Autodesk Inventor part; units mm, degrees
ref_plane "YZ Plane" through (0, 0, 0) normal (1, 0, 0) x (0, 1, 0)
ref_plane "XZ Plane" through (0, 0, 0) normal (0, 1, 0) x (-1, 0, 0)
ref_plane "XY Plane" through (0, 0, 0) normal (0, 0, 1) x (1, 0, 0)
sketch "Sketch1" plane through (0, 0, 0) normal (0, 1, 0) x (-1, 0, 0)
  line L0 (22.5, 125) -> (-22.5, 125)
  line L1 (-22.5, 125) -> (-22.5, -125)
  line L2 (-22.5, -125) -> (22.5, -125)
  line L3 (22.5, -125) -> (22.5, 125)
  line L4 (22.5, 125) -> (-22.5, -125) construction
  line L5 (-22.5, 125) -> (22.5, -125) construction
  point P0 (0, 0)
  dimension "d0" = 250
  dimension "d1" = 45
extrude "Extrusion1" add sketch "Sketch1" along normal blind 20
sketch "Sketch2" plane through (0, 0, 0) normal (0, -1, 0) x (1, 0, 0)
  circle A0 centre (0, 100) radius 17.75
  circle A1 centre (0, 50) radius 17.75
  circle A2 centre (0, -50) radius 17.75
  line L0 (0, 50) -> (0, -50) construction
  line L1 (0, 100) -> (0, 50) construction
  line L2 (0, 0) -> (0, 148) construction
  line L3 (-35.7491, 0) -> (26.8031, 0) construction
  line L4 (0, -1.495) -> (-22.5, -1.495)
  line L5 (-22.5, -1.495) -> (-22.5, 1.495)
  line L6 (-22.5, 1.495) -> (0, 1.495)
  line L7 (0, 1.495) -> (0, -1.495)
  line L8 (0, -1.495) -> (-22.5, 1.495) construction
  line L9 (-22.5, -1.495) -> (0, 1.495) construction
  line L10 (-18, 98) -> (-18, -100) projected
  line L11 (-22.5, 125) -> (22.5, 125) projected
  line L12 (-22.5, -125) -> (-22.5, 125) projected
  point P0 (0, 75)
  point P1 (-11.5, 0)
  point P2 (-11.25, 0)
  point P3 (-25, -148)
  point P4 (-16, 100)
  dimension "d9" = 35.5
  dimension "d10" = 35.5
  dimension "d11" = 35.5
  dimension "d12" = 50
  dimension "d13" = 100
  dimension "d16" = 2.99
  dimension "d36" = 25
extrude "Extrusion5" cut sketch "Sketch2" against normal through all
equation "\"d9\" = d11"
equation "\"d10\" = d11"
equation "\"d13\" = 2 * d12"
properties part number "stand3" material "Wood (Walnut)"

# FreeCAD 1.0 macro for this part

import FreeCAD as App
import Part
import Sketcher

doc = App.newDocument("Part")
body = doc.addObject("PartDesign::Body", "Body")

# Sketch on XZ plane
sketch1 = body.newObject("Sketcher::SketchObject", "Sketch")
sketch1.AttachmentSupport = (doc.getObject("XZ_Plane"), [""])
sketch1.MapMode = "FlatFace"
sketch1.addGeometry(Part.LineSegment(App.Vector(-22.5, -125, 0), App.Vector(-22.5, 125, 0)), False)
sketch1.addGeometry(Part.LineSegment(App.Vector(-22.5, 125, 0), App.Vector(22.5, 125, 0)), False)
sketch1.addGeometry(Part.LineSegment(App.Vector(22.5, 125, 0), App.Vector(22.5, -125, 0)), False)
sketch1.addGeometry(Part.LineSegment(App.Vector(22.5, -125, 0), App.Vector(-22.5, -125, 0)), False)
sketch1.addConstraint(Sketcher.Constraint("Coincident", 0, 2, 1, 1))
sketch1.addConstraint(Sketcher.Constraint("Coincident", 1, 2, 2, 1))
sketch1.addConstraint(Sketcher.Constraint("Coincident", 2, 2, 3, 1))
sketch1.addConstraint(Sketcher.Constraint("Coincident", 3, 2, 0, 1))
sketch1.addConstraint(Sketcher.Constraint("Vertical", 0))
sketch1.addConstraint(Sketcher.Constraint("Horizontal", 1))
sketch1.addConstraint(Sketcher.Constraint("Vertical", 2))
sketch1.addConstraint(Sketcher.Constraint("Horizontal", 3))
sketch1.addConstraint(Sketcher.Constraint("Symmetric", 0, 2, 2, 2, -1, 1))
sketch1.addConstraint(Sketcher.Constraint("DistanceX", 1, 1, 1, 2, 45.0))
sketch1.addConstraint(Sketcher.Constraint("DistanceY", 0, 1, 0, 2, 250.0))
pad1 = body.newObject("PartDesign::Pad", "Pad")
pad1.Profile = sketch1
pad1.Length = 20
pad1.Reversed = True

# Sketch on XZ plane
sketch2 = body.newObject("Sketcher::SketchObject", "Sketch001")
sketch2.AttachmentSupport = (doc.getObject("XZ_Plane"), [""])
sketch2.MapMode = "FlatFace"
sketch2.addGeometry(Part.Circle(App.Vector(0, 100, 0), App.Vector(0, 0, 1), 17.75), False)
sketch2.addGeometry(Part.Circle(App.Vector(0, 50, 0), App.Vector(0, 0, 1), 17.75), False)
sketch2.addGeometry(Part.Circle(App.Vector(0, -50, 0), App.Vector(0, 0, 1), 17.75), False)
sketch2.addGeometry(Part.LineSegment(App.Vector(0, -1.495, 0), App.Vector(0, 1.495, 0)), False)
sketch2.addGeometry(Part.LineSegment(App.Vector(0, 1.495, 0), App.Vector(-22.5, 1.495, 0)), False)
sketch2.addGeometry(Part.LineSegment(App.Vector(-22.5, 1.495, 0), App.Vector(-22.5, -1.495, 0)), False)
sketch2.addGeometry(Part.LineSegment(App.Vector(-22.5, -1.495, 0), App.Vector(0, -1.495, 0)), False)
sketch2.addConstraint(Sketcher.Constraint("Coincident", 3, 2, 4, 1))
sketch2.addConstraint(Sketcher.Constraint("Coincident", 4, 2, 5, 1))
sketch2.addConstraint(Sketcher.Constraint("Coincident", 5, 2, 6, 1))
sketch2.addConstraint(Sketcher.Constraint("Coincident", 6, 2, 3, 1))
sketch2.addConstraint(Sketcher.Constraint("Vertical", 3))
sketch2.addConstraint(Sketcher.Constraint("Horizontal", 4))
sketch2.addConstraint(Sketcher.Constraint("Vertical", 5))
sketch2.addConstraint(Sketcher.Constraint("Horizontal", 6))
sketch2.addConstraint(Sketcher.Constraint("Equal", 0, 1))
sketch2.addConstraint(Sketcher.Constraint("Equal", 1, 2))
sketch2.addConstraint(Sketcher.Constraint("Symmetric", 1, 3, 2, 3, -1, 1))
sketch2.addConstraint(Sketcher.Constraint("Symmetric", 3, 2, 6, 2, -1, 1))
sketch2.addConstraint(Sketcher.Constraint("PointOnObject", 0, 3, -2))
sketch2.addConstraint(Sketcher.Constraint("PointOnObject", 1, 3, -2))
sketch2.addConstraint(Sketcher.Constraint("Diameter", 0, 35.5))
sketch2.addConstraint(Sketcher.Constraint("DistanceY", -1, 1, 0, 3, 100.0))
sketch2.addConstraint(Sketcher.Constraint("DistanceY", -1, 1, 1, 3, 50.0))
sketch2.addConstraint(Sketcher.Constraint("DistanceY", 3, 1, 3, 2, 2.99))
sketch2.addConstraint(Sketcher.Constraint("DistanceX", 4, 2, 4, 1, 22.5))
pocket1 = body.newObject("PartDesign::Pocket", "Pocket")
pocket1.Profile = sketch2
pocket1.Type = "ThroughAll"

doc.recompute()
